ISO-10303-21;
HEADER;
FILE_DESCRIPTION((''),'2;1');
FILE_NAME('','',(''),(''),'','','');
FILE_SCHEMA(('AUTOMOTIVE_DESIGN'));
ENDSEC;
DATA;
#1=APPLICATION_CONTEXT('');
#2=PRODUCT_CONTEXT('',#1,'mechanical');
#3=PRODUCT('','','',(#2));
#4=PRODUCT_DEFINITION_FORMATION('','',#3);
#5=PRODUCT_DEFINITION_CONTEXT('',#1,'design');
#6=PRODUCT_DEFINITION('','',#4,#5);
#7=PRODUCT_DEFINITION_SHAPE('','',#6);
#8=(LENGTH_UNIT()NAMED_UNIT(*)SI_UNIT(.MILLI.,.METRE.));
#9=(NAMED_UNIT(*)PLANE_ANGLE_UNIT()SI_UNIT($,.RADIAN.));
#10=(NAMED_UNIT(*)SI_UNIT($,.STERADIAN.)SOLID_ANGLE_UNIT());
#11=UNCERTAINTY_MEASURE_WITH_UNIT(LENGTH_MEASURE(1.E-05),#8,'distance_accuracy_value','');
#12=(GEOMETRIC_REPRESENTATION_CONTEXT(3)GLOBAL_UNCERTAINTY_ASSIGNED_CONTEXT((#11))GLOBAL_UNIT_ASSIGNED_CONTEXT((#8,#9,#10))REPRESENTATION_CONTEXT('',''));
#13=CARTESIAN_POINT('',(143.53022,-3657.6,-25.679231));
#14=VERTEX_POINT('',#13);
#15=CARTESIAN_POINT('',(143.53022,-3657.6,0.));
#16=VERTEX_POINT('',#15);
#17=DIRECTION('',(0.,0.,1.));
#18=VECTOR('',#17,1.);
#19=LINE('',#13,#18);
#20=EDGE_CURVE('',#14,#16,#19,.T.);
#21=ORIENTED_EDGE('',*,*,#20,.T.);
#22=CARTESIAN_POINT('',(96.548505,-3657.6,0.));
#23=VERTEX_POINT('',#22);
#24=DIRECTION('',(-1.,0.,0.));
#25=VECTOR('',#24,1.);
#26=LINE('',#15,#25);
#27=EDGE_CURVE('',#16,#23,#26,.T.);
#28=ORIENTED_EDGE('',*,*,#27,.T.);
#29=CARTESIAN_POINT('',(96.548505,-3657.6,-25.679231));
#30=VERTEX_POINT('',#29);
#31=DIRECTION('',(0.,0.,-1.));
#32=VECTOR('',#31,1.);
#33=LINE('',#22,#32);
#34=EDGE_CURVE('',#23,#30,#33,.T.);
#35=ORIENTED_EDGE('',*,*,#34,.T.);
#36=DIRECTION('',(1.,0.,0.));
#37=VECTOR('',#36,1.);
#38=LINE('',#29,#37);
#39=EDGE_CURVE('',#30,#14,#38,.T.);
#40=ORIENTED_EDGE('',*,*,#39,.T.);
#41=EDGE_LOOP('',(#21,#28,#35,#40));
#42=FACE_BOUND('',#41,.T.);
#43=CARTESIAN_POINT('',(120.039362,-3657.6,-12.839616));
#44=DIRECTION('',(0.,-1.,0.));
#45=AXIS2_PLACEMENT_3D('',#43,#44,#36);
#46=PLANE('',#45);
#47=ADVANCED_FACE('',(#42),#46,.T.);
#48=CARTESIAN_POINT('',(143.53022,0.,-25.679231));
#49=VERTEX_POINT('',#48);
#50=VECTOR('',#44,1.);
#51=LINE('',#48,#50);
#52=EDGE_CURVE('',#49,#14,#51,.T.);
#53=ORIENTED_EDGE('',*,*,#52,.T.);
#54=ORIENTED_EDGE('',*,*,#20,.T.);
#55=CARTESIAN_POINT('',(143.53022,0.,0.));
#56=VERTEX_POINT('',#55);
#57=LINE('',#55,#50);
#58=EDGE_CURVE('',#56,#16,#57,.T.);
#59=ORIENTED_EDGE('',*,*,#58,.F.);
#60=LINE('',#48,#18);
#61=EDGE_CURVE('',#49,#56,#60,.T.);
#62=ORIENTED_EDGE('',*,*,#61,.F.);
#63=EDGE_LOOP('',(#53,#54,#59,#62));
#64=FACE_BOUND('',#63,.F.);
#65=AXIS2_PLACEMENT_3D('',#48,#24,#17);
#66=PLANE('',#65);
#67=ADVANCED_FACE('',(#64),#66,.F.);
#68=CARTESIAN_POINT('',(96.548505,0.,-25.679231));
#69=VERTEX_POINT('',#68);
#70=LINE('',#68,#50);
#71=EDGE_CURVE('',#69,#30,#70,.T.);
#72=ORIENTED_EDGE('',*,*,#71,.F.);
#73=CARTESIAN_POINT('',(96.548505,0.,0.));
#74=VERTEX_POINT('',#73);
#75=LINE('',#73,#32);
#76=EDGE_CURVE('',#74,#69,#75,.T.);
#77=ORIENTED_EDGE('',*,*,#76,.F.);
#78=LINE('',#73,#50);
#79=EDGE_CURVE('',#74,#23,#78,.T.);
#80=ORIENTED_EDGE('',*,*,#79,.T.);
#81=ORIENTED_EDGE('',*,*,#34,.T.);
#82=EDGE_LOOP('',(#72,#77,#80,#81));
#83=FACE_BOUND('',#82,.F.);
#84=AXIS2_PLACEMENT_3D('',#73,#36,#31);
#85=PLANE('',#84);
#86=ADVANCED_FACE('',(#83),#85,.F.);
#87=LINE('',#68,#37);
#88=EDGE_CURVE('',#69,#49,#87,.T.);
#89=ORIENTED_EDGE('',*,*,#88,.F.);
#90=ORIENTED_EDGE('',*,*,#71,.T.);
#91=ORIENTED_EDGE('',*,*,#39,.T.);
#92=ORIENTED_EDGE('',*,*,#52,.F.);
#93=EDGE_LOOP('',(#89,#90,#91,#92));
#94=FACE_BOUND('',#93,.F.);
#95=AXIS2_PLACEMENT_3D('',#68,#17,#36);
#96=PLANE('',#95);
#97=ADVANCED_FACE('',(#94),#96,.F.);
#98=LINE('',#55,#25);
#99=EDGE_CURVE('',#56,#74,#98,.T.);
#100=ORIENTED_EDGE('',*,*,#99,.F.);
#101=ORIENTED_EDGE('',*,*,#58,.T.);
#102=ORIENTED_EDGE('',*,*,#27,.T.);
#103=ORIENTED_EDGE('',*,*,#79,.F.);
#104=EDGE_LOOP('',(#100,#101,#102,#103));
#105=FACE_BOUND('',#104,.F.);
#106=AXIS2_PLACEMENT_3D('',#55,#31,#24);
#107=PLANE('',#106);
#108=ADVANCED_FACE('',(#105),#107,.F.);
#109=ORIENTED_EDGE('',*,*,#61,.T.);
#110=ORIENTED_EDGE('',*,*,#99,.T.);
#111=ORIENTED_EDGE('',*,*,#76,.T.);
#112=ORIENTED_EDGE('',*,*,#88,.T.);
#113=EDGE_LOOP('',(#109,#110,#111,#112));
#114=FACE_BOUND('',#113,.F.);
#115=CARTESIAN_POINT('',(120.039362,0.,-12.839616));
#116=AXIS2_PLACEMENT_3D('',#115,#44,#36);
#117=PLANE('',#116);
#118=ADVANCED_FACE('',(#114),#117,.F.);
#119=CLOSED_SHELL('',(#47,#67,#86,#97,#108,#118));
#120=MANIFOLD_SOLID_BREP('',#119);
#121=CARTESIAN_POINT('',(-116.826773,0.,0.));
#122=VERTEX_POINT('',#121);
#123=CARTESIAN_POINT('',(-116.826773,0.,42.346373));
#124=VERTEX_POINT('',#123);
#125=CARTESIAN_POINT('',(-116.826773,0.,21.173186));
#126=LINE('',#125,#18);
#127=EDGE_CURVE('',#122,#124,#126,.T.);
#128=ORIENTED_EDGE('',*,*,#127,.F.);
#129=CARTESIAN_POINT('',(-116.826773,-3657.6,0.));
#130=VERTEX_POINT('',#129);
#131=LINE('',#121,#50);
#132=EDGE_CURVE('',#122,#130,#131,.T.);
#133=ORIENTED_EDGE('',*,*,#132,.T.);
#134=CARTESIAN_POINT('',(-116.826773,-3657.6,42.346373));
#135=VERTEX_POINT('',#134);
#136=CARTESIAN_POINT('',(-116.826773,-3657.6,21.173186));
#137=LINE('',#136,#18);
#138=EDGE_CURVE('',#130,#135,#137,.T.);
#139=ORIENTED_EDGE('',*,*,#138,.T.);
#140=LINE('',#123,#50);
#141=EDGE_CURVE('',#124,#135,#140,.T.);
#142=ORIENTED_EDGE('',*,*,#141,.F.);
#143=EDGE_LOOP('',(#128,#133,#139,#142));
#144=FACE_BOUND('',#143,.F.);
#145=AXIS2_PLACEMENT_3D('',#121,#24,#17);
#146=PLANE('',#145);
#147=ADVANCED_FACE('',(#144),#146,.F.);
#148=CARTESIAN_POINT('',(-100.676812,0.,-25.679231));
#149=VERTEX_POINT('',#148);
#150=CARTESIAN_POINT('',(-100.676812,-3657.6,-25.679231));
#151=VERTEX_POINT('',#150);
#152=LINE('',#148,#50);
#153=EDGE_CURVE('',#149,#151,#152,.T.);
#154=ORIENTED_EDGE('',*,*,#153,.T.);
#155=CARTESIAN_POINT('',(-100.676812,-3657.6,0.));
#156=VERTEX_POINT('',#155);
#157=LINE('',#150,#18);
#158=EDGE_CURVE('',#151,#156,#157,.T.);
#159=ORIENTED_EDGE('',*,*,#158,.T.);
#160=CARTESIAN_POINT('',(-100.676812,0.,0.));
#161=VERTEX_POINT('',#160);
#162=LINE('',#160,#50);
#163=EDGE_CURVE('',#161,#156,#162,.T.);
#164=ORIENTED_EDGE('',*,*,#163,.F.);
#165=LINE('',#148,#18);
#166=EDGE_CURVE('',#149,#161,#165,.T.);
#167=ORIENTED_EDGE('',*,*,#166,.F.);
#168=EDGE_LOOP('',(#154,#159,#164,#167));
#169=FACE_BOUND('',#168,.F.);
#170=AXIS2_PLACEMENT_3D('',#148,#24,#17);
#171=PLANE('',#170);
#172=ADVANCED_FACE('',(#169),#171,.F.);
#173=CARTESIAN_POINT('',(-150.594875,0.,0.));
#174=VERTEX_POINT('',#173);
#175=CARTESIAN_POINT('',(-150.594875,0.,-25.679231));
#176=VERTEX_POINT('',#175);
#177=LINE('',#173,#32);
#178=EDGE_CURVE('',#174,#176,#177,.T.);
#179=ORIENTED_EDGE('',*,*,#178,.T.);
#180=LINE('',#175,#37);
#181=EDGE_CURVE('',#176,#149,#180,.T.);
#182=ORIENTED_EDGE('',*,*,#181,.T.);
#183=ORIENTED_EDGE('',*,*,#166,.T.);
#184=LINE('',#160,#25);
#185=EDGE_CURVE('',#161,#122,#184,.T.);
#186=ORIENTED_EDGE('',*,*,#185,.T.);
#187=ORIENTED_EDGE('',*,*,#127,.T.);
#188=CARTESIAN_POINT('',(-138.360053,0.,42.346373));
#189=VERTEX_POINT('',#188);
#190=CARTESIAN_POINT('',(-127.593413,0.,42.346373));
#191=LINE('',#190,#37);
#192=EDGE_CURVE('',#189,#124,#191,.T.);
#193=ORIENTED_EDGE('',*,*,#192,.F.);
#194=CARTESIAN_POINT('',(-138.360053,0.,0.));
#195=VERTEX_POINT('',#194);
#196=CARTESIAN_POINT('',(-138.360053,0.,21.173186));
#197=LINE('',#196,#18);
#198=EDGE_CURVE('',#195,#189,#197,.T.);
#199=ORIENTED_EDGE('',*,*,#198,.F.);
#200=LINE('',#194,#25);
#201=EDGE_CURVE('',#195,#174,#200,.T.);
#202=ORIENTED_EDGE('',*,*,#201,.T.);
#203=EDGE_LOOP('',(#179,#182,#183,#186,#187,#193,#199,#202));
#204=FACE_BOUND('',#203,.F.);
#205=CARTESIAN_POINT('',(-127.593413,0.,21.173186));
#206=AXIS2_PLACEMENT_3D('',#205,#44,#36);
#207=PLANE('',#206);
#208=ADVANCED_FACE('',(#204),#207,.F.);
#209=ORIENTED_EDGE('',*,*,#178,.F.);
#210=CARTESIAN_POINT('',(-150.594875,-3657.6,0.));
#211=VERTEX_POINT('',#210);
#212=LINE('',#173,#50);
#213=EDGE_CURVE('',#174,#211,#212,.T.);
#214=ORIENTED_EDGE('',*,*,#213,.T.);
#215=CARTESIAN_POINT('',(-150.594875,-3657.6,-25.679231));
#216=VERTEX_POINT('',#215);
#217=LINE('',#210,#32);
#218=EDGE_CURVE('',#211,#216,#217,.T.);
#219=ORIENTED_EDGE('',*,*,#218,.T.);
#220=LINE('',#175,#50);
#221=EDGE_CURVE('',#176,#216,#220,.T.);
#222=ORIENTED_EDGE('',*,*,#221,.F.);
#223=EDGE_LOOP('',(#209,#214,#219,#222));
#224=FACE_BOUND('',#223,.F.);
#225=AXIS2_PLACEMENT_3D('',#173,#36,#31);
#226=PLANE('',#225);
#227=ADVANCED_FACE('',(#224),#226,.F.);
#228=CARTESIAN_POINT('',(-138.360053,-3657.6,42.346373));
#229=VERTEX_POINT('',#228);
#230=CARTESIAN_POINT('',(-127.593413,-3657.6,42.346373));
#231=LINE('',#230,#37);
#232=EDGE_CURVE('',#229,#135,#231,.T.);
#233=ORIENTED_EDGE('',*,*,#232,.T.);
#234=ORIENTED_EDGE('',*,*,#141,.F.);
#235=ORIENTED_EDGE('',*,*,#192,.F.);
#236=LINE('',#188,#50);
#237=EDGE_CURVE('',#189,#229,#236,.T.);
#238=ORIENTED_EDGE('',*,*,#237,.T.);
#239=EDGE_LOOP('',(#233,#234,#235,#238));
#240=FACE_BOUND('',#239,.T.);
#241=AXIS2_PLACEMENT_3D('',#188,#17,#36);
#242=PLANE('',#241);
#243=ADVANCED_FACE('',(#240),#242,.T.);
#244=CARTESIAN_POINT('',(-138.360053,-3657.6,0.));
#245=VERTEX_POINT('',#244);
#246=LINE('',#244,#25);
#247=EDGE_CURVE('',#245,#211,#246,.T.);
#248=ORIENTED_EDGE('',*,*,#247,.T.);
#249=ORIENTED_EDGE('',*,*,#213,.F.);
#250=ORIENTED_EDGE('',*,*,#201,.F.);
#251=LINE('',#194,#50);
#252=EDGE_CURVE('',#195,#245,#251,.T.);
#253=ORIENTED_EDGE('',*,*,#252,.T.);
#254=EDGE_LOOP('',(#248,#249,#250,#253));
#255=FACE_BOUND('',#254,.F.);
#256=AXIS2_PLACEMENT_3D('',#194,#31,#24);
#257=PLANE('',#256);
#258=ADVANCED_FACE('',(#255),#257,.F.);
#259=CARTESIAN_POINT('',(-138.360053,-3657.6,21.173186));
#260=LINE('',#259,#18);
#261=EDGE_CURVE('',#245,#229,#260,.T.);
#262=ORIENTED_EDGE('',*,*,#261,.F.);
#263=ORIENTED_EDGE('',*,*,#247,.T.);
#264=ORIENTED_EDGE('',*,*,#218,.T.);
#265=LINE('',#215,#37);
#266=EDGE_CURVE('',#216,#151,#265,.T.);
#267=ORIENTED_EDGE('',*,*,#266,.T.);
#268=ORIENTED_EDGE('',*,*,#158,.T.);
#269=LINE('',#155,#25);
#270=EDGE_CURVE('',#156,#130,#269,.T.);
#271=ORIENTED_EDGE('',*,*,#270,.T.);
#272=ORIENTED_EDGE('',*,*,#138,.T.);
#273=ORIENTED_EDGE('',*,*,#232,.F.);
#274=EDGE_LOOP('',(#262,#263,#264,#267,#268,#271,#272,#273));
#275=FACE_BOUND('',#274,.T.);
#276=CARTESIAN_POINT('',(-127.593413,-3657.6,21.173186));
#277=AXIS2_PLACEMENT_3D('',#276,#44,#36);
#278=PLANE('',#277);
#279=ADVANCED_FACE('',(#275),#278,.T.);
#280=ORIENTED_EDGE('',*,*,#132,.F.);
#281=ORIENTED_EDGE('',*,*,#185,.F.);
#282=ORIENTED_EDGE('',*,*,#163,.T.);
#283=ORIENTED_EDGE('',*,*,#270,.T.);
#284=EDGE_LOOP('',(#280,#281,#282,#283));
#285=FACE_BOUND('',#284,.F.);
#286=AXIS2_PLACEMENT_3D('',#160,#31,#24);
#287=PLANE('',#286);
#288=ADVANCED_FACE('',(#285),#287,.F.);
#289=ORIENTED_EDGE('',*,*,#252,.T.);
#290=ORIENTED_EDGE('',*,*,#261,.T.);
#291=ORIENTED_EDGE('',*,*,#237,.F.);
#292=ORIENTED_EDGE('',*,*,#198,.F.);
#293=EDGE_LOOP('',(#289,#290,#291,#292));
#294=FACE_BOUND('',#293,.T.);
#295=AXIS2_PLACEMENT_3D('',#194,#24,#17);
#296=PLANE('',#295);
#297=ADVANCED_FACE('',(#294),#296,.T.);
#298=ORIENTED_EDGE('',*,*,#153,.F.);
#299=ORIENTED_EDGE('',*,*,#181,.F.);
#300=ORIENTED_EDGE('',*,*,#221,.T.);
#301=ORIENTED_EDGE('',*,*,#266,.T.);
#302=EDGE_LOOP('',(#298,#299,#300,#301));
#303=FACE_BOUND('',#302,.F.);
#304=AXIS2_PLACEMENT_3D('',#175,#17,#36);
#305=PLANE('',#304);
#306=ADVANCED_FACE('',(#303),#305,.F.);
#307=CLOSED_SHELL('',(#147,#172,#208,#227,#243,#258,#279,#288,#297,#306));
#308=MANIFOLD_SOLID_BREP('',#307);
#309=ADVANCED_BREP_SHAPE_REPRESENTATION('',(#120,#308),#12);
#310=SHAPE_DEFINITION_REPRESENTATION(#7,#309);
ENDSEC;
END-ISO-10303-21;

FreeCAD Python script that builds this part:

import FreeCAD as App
import Part
import Sketcher

V = App.Vector
Q = App.Units.Quantity

doc = App.newDocument("Part")
body = doc.addObject("PartDesign::Body", "Body")
body.AllowCompound = True

# Sketch on XZ plane
sketch1 = body.newObject("Sketcher::SketchObject", "Sketch")
sketch1.AttachmentSupport = (doc.getObject("XZ_Plane"), [""])
sketch1.MapMode = "FlatFace"
sketch1.addGeometry(Part.LineSegment(V(-138.360053, 0, 0), V(-150.594875, 0, 0)), False)
sketch1.addGeometry(Part.LineSegment(V(-150.594875, 0, 0), V(-150.594875, -25.679231, 0)), False)
sketch1.addGeometry(Part.LineSegment(V(-150.594875, -25.679231, 0), V(-100.676812, -25.679231, 0)), False)
sketch1.addGeometry(Part.LineSegment(V(-100.676812, -25.679231, 0), V(-100.676812, 0, 0)), False)
sketch1.addGeometry(Part.LineSegment(V(-100.676812, 0, 0), V(-116.826773, 0, 0)), False)
sketch1.addGeometry(Part.LineSegment(V(-116.826773, 0, 0), V(-116.826773, 42.346373, 0)), False)
sketch1.addGeometry(Part.LineSegment(V(-116.826773, 42.346373, 0), V(-138.360053, 42.346373, 0)), False)
sketch1.addGeometry(Part.LineSegment(V(-138.360053, 42.346373, 0), V(-138.360053, 0, 0)), False)
sketch1.addGeometry(Part.LineSegment(V(96.548505, -25.679231, 0), V(143.53022, -25.679231, 0)), False)
sketch1.addGeometry(Part.LineSegment(V(143.53022, -25.679231, 0), V(143.53022, 0, 0)), False)
sketch1.addGeometry(Part.LineSegment(V(143.53022, 0, 0), V(96.548505, 0, 0)), False)
sketch1.addGeometry(Part.LineSegment(V(96.548505, 0, 0), V(96.548505, -25.679231, 0)), False)
sketch1.addConstraint(Sketcher.Constraint("Coincident", 0, 2, 1, 1))
sketch1.addConstraint(Sketcher.Constraint("Coincident", 1, 2, 2, 1))
sketch1.addConstraint(Sketcher.Constraint("Coincident", 2, 2, 3, 1))
sketch1.addConstraint(Sketcher.Constraint("Coincident", 3, 2, 4, 1))
sketch1.addConstraint(Sketcher.Constraint("Coincident", 4, 2, 5, 1))
sketch1.addConstraint(Sketcher.Constraint("Coincident", 5, 2, 6, 1))
sketch1.addConstraint(Sketcher.Constraint("Coincident", 6, 2, 7, 1))
sketch1.addConstraint(Sketcher.Constraint("Coincident", 7, 2, 0, 1))
sketch1.addConstraint(Sketcher.Constraint("Coincident", 8, 2, 9, 1))
sketch1.addConstraint(Sketcher.Constraint("Coincident", 9, 2, 10, 1))
sketch1.addConstraint(Sketcher.Constraint("Coincident", 10, 2, 11, 1))
sketch1.addConstraint(Sketcher.Constraint("Coincident", 11, 2, 8, 1))
sketch1.addConstraint(Sketcher.Constraint("Horizontal", 0))
sketch1.addConstraint(Sketcher.Constraint("Vertical", 1))
sketch1.addConstraint(Sketcher.Constraint("Horizontal", 2))
sketch1.addConstraint(Sketcher.Constraint("Vertical", 3))
sketch1.addConstraint(Sketcher.Constraint("Horizontal", 4))
sketch1.addConstraint(Sketcher.Constraint("Vertical", 5))
sketch1.addConstraint(Sketcher.Constraint("Horizontal", 6))
sketch1.addConstraint(Sketcher.Constraint("Vertical", 7))
sketch1.addConstraint(Sketcher.Constraint("Horizontal", 8))
sketch1.addConstraint(Sketcher.Constraint("Vertical", 9))
sketch1.addConstraint(Sketcher.Constraint("Horizontal", 10))
sketch1.addConstraint(Sketcher.Constraint("Vertical", 11))
sketch1.addConstraint(Sketcher.Constraint("PointOnObject", 0, 2, -1))
sketch1.addConstraint(Sketcher.Constraint("PointOnObject", 3, 2, -1))
sketch1.addConstraint(Sketcher.Constraint("PointOnObject", 9, 2, -1))
sketch1.addConstraint(Sketcher.Constraint("Horizontal", 2, 2, 8, 2))
sketch1.addConstraint(Sketcher.Constraint("DistanceX", 4, 2, 4, 1, Q("16.149961 mm")))
sketch1.addConstraint(Sketcher.Constraint("DistanceX", 6, 2, 6, 1, Q("21.53328 mm")))
sketch1.addConstraint(Sketcher.Constraint("DistanceY", 1, 2, 1, 1, Q("25.679231 mm")))
sketch1.addConstraint(Sketcher.Constraint("DistanceX", 0, 2, 0, 1, Q("12.234822 mm")))
sketch1.addConstraint(Sketcher.Constraint("DistanceX", 8, 1, 8, 2, Q("46.981715 mm")))
sketch1.addConstraint(Sketcher.Constraint("DistanceY", 5, 1, 5, 2, Q("42.346373 mm")))
sketch1.addConstraint(Sketcher.Constraint("DistanceX", 2, 2, -1, 1, Q("100.676812 mm")))
sketch1.addConstraint(Sketcher.Constraint("DistanceX", -1, 1, 8, 2, Q("143.53022 mm")))
pad1 = body.newObject("PartDesign::Pad", "Pad")
pad1.Profile = sketch1
pad1.Length = Q("144 in")

doc.recompute()
